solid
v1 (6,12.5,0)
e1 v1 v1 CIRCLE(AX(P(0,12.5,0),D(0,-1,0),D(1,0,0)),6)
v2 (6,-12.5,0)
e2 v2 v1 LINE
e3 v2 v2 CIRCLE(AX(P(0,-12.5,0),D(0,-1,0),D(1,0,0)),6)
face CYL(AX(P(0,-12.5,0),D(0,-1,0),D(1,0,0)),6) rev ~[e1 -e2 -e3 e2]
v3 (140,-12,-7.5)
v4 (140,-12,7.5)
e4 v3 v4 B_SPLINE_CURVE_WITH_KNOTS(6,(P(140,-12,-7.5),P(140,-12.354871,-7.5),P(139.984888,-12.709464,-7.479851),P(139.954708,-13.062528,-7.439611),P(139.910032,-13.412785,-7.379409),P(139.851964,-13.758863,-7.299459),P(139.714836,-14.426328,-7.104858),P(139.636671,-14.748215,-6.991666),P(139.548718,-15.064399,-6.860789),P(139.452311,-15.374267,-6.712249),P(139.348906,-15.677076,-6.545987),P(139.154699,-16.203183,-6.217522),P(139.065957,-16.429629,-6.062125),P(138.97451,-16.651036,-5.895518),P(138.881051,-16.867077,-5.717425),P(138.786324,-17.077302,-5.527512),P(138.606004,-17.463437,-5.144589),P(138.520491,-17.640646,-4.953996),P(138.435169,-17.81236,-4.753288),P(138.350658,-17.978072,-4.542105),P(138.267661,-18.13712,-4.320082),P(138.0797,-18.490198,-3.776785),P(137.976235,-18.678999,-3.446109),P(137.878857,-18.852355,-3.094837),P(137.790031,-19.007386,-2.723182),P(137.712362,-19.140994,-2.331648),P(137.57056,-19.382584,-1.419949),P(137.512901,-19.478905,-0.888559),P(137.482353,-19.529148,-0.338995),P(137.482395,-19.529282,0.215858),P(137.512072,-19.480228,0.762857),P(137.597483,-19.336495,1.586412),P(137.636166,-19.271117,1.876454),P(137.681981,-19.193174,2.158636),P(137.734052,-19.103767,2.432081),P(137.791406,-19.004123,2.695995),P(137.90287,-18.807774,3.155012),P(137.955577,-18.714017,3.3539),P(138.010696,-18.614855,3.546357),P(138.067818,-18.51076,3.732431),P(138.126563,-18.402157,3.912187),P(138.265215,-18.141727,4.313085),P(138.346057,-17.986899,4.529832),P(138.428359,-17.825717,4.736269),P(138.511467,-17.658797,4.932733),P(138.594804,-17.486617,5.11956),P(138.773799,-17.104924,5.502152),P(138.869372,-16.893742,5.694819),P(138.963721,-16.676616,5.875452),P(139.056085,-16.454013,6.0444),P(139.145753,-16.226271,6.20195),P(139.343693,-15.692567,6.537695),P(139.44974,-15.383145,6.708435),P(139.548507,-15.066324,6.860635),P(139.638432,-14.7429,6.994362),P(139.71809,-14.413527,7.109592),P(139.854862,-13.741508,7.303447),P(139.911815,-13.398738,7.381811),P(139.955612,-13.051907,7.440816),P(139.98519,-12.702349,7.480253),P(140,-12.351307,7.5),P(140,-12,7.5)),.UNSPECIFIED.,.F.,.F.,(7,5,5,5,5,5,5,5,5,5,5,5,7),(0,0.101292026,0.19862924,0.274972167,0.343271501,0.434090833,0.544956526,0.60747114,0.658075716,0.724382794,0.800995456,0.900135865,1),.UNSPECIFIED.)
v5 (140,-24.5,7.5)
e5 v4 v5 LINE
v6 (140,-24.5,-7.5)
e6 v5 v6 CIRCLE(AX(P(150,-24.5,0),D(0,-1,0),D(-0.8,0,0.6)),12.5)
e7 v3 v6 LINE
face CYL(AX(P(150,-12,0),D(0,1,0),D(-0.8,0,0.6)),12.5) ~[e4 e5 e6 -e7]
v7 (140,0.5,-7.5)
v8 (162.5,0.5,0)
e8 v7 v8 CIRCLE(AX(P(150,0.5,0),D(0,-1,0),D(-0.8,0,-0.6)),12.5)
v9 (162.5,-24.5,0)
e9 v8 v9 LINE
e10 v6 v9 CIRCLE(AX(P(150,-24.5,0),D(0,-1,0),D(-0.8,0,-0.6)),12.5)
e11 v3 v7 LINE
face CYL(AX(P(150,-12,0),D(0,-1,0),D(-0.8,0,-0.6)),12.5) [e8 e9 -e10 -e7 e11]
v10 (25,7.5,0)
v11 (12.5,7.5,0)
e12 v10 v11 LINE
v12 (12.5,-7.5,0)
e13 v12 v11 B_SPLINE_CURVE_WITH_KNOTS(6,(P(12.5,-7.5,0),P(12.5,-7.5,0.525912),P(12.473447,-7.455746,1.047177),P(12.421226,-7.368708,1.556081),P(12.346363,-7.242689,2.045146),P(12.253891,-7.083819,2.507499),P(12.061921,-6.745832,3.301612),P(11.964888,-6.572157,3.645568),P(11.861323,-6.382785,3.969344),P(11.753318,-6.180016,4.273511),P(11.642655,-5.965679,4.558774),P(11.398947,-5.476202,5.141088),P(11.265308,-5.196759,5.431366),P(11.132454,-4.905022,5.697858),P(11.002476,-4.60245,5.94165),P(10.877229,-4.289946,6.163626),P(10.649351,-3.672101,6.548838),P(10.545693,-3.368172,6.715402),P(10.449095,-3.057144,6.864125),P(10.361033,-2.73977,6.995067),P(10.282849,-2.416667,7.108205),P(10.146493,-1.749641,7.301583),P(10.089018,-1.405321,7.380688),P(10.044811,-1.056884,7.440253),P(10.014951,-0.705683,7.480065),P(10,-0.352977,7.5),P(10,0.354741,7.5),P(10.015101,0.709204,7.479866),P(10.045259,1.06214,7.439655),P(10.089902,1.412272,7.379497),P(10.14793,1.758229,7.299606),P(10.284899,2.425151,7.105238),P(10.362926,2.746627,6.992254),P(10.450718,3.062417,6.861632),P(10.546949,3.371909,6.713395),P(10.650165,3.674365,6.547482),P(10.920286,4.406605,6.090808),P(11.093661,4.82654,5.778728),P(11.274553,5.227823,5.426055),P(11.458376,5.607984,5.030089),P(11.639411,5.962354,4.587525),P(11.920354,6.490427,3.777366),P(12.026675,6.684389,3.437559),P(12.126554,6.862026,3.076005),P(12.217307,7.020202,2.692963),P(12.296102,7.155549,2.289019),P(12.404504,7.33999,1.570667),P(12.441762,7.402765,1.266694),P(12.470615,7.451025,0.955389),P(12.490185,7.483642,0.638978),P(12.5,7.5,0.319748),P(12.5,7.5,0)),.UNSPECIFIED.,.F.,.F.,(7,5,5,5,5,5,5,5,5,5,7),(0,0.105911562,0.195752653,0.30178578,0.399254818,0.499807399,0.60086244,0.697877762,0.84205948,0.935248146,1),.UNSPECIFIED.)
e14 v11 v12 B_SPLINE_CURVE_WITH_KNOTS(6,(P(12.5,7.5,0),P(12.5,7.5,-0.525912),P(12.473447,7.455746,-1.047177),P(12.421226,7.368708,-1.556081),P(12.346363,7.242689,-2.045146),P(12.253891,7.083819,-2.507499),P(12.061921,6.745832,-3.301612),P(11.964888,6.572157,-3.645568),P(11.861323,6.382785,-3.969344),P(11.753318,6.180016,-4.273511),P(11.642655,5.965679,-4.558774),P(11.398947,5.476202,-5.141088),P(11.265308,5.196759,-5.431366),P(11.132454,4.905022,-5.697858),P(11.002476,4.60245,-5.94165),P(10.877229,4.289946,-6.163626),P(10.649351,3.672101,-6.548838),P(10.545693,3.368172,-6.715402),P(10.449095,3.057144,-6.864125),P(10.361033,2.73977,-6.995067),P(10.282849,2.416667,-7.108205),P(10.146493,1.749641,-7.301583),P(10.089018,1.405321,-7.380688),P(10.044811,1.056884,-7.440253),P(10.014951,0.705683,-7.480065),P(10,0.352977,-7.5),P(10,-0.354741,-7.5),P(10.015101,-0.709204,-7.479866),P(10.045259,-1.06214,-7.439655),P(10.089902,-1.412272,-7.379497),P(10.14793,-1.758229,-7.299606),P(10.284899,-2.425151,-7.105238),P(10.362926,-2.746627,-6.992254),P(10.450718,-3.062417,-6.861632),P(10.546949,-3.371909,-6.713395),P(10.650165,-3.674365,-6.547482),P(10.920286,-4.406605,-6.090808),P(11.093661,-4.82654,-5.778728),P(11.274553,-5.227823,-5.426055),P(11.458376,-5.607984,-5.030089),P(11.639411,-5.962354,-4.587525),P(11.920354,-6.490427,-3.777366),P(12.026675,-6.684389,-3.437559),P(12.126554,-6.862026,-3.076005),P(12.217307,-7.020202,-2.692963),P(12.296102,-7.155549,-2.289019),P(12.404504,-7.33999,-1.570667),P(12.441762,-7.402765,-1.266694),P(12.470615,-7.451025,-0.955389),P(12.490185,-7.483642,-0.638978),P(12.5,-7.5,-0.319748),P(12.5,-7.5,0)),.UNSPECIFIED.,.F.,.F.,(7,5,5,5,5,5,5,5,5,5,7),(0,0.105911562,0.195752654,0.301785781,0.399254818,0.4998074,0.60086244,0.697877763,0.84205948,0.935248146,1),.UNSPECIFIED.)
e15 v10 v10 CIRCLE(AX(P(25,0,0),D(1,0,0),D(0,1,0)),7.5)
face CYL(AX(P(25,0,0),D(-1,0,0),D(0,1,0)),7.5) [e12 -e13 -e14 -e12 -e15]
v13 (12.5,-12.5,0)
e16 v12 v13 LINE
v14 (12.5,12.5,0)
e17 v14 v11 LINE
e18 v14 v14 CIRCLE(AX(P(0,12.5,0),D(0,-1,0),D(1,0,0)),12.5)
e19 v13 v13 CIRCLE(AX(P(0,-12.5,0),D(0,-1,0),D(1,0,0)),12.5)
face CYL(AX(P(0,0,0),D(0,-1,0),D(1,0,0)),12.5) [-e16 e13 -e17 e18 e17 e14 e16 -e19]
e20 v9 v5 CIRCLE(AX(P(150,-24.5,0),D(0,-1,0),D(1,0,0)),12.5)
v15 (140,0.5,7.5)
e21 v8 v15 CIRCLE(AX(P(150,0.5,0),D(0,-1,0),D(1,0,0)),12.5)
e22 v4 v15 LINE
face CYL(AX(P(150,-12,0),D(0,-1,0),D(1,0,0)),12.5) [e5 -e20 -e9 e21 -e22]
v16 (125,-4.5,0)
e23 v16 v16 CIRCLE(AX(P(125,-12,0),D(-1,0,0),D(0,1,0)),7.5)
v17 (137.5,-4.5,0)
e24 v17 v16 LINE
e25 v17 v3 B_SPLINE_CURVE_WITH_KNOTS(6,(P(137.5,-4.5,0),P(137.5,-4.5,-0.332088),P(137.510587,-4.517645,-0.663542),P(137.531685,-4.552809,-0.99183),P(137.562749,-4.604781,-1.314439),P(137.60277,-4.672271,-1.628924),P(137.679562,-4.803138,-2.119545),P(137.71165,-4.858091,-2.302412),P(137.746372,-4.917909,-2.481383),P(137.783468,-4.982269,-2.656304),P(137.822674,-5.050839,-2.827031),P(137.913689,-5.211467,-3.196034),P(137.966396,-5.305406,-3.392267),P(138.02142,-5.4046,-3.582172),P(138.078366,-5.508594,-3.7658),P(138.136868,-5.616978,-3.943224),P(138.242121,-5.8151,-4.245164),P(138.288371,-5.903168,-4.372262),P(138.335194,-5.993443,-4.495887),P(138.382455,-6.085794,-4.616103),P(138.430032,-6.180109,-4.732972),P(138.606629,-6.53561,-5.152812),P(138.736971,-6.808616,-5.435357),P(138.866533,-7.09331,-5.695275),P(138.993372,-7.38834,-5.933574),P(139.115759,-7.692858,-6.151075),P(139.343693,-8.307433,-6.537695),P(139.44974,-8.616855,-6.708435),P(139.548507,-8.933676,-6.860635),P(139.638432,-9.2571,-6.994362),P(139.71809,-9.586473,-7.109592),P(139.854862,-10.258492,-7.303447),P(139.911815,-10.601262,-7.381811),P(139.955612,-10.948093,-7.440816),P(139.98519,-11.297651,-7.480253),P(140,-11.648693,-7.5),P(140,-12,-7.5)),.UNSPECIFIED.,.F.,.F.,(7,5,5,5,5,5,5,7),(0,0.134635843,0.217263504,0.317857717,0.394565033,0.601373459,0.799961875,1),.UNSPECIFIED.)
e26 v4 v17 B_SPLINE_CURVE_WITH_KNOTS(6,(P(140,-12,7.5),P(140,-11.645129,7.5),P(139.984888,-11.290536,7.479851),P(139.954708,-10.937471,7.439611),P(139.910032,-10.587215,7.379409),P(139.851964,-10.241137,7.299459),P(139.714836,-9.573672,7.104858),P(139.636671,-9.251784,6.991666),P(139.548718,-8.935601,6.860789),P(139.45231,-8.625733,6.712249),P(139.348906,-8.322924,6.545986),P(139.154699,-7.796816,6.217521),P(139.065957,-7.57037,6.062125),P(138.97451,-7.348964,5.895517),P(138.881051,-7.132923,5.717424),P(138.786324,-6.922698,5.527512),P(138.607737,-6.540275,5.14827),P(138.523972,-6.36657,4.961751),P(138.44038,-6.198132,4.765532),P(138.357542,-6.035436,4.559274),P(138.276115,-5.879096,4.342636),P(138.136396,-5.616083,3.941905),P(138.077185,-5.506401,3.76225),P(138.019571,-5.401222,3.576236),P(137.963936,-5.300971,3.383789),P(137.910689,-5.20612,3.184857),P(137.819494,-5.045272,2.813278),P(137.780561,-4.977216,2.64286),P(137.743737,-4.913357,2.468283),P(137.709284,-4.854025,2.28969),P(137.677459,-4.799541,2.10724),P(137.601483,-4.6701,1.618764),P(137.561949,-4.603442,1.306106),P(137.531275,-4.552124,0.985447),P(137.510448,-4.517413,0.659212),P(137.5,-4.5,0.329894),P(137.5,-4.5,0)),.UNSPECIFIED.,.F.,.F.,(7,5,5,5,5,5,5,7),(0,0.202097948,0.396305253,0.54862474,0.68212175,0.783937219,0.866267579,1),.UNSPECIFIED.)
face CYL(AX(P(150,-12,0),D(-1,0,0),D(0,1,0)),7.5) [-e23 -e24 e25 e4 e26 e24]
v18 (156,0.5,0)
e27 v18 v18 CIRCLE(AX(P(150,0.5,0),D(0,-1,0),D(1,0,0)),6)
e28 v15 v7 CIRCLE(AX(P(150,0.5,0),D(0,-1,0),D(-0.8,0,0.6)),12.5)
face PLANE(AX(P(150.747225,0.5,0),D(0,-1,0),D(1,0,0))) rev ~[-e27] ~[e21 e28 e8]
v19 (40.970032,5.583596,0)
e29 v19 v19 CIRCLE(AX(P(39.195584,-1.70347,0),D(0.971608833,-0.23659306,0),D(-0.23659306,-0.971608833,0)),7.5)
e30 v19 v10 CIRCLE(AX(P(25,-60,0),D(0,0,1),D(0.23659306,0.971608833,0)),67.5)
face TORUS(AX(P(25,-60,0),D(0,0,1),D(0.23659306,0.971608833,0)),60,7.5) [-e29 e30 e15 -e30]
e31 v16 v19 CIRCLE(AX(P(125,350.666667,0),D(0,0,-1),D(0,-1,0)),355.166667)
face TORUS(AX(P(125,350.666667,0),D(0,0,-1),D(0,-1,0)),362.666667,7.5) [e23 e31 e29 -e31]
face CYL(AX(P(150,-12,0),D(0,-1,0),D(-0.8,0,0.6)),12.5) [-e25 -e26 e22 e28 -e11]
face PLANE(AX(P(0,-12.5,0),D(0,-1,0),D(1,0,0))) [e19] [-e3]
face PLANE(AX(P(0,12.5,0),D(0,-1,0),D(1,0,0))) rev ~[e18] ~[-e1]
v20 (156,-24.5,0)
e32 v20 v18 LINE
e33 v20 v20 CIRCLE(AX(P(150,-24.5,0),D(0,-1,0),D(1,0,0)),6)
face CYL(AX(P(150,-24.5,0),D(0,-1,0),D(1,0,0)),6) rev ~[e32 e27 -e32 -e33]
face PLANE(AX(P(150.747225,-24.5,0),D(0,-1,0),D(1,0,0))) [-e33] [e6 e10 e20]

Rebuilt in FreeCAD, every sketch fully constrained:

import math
import FreeCAD as App
import Part
import Sketcher
from FreeCAD import Vector
Q = App.Units.Quantity

doc = App.newDocument("Part")
body = doc.addObject("PartDesign::Body", "Body")

# Sketch on YZ plane
sketch1 = body.newObject("Sketcher::SketchObject", "Sketch")
sketch1.AttachmentSupport = (doc.getObject("YZ_Plane"), [""])
sketch1.MapMode = "FlatFace"
sketch1.addGeometry(Part.Circle(Vector(0, 0, 0), Vector(0, 0, 1), 7.5), False)
sketch1.addConstraint([
    Sketcher.Constraint("Coincident", 0, 3, -1, 1),
    Sketcher.Constraint("Diameter", 0, Q("15 mm")),
])

# Sketch on XY plane
sketch2 = body.newObject("Sketcher::SketchObject", "Sketch001")
sketch2.AttachmentSupport = (doc.getObject("XY_Plane"), [""])
sketch2.MapMode = "FlatFace"
sketch2.addGeometry([
    Part.LineSegment(Vector(150, -12, 0), Vector(125, -12, 0)),
    Part.ArcOfCircle(Part.Circle(Vector(125, 350.666667, 0), Vector(0, 0, 1), 362.666667), math.radians(-103.685547), math.radians(-90)),
    Part.ArcOfCircle(Part.Circle(Vector(25, -60, 0), Vector(0, 0, 1), 60), math.radians(76.314453), math.radians(90)),
    Part.LineSegment(Vector(25, 0, 0), Vector(0, 0, 0)),
], False)
sketch2.addConstraint([
    Sketcher.Constraint("Tangent", 0, 2, 1, 2),
    Sketcher.Constraint("Tangent", 1, 1, 2, 1),
    Sketcher.Constraint("Tangent", 2, 2, 3, 1),
    Sketcher.Constraint("Horizontal", 0),
    Sketcher.Constraint("Horizontal", 3),
    Sketcher.Constraint("Coincident", 3, 2, -1, 1),
    Sketcher.Constraint("Equal", 0, 3),
    Sketcher.Constraint("Radius", 2, Q("60 mm")),
    Sketcher.Constraint("DistanceX", 0, 2, 0, 1, Q("25 mm")),
    Sketcher.Constraint("DistanceX", -1, 1, 1, 3, Q("125 mm")),
    Sketcher.Constraint("DistanceY", 0, 1, -1, 1, Q("12 mm")),
])
doc.recompute()

additivepipe = body.newObject("PartDesign::AdditivePipe", "AdditivePipe")
additivepipe.Profile = sketch1
additivepipe.Spine = (sketch2, ["Edge1", "Edge2", "Edge3", "Edge4"])

# Sketch on XZ plane
sketch3 = body.newObject("Sketcher::SketchObject", "Sketch002")
sketch3.AttachmentSupport = (doc.getObject("XZ_Plane"), [""])
sketch3.MapMode = "FlatFace"
sketch3.addGeometry(Part.Circle(Vector(0, 0, 0), Vector(0, 0, 1), 12.5), False)
sketch3.addConstraint([
    Sketcher.Constraint("Coincident", 0, 3, -1, 1),
    Sketcher.Constraint("Diameter", 0, Q("25 mm")),
])
pad1 = body.newObject("PartDesign::Pad", "Pad")
pad1.Profile = sketch3
pad1.Length = 25
pad1.Midplane = True

# Sketch on XZ plane
sketch4 = body.newObject("Sketcher::SketchObject", "Sketch003")
sketch4.AttachmentSupport = (doc.getObject("XZ_Plane"), [""])
sketch4.MapMode = "FlatFace"
sketch4.AttachmentOffset = App.Placement(Vector(0, 0, 12.5), App.Rotation())
sketch4.addGeometry(Part.Circle(Vector(0, 0, 0), Vector(0, 0, 1), 6), False)
sketch4.addConstraint([
    Sketcher.Constraint("Coincident", 0, 3, -1, 1),
    Sketcher.Constraint("Diameter", 0, Q("12 mm")),
])
pocket1 = body.newObject("PartDesign::Pocket", "Pocket")
pocket1.Profile = sketch4
pocket1.Length = 25

# Sketch on XZ plane
sketch5 = body.newObject("Sketcher::SketchObject", "Sketch004")
sketch5.AttachmentSupport = (doc.getObject("XZ_Plane"), [""])
sketch5.MapMode = "FlatFace"
sketch5.AttachmentOffset = App.Placement(Vector(0, 0, 12), App.Rotation())
sketch5.addGeometry([
    Part.ArcOfCircle(Part.Circle(Vector(150, 0, 0), Vector(0, 0, 1), 12.5), math.radians(-143.130102), math.radians(0)),
    Part.ArcOfCircle(Part.Circle(Vector(150, 0, 0), Vector(0, 0, 1), 12.5), math.radians(0), math.radians(143.130102)),
    Part.ArcOfCircle(Part.Circle(Vector(150, 0, 0), Vector(0, 0, 1), 12.5), math.radians(143.130102), math.radians(216.869898)),
], False)
sketch5.addConstraint([
    Sketcher.Constraint("Tangent", 0, 2, 1, 1),
    Sketcher.Constraint("Tangent", 1, 2, 2, 1),
    Sketcher.Constraint("Tangent", 2, 2, 0, 1),
    Sketcher.Constraint("Symmetric", 1, 2, 2, 2, -1),
    Sketcher.Constraint("PointOnObject", 0, 2, -1),
    Sketcher.Constraint("Radius", 0, Q("12.5 mm")),
    Sketcher.Constraint("DistanceX", -1, 1, 0, 3, Q("150 mm")),
    Sketcher.Constraint("DistanceX", -1, 1, 1, 2, Q("140 mm")),
])
pad2 = body.newObject("PartDesign::Pad", "Pad001")
pad2.Profile = sketch5
pad2.Length = 25
pad2.Midplane = True

# Sketch on XZ plane
sketch6 = body.newObject("Sketcher::SketchObject", "Sketch005")
sketch6.AttachmentSupport = (doc.getObject("XZ_Plane"), [""])
sketch6.MapMode = "FlatFace"
sketch6.AttachmentOffset = App.Placement(Vector(0, 0, 24.5), App.Rotation())
sketch6.addGeometry(Part.Circle(Vector(150, 0, 0), Vector(0, 0, 1), 6), False)
sketch6.addConstraint([
    Sketcher.Constraint("PointOnObject", 0, 3, -1),
    Sketcher.Constraint("Diameter", 0, Q("12 mm")),
    Sketcher.Constraint("DistanceX", -1, 1, 0, 3, Q("150 mm")),
])
pocket2 = body.newObject("PartDesign::Pocket", "Pocket001")
pocket2.Profile = sketch6
pocket2.Length = 25

doc.recompute()
